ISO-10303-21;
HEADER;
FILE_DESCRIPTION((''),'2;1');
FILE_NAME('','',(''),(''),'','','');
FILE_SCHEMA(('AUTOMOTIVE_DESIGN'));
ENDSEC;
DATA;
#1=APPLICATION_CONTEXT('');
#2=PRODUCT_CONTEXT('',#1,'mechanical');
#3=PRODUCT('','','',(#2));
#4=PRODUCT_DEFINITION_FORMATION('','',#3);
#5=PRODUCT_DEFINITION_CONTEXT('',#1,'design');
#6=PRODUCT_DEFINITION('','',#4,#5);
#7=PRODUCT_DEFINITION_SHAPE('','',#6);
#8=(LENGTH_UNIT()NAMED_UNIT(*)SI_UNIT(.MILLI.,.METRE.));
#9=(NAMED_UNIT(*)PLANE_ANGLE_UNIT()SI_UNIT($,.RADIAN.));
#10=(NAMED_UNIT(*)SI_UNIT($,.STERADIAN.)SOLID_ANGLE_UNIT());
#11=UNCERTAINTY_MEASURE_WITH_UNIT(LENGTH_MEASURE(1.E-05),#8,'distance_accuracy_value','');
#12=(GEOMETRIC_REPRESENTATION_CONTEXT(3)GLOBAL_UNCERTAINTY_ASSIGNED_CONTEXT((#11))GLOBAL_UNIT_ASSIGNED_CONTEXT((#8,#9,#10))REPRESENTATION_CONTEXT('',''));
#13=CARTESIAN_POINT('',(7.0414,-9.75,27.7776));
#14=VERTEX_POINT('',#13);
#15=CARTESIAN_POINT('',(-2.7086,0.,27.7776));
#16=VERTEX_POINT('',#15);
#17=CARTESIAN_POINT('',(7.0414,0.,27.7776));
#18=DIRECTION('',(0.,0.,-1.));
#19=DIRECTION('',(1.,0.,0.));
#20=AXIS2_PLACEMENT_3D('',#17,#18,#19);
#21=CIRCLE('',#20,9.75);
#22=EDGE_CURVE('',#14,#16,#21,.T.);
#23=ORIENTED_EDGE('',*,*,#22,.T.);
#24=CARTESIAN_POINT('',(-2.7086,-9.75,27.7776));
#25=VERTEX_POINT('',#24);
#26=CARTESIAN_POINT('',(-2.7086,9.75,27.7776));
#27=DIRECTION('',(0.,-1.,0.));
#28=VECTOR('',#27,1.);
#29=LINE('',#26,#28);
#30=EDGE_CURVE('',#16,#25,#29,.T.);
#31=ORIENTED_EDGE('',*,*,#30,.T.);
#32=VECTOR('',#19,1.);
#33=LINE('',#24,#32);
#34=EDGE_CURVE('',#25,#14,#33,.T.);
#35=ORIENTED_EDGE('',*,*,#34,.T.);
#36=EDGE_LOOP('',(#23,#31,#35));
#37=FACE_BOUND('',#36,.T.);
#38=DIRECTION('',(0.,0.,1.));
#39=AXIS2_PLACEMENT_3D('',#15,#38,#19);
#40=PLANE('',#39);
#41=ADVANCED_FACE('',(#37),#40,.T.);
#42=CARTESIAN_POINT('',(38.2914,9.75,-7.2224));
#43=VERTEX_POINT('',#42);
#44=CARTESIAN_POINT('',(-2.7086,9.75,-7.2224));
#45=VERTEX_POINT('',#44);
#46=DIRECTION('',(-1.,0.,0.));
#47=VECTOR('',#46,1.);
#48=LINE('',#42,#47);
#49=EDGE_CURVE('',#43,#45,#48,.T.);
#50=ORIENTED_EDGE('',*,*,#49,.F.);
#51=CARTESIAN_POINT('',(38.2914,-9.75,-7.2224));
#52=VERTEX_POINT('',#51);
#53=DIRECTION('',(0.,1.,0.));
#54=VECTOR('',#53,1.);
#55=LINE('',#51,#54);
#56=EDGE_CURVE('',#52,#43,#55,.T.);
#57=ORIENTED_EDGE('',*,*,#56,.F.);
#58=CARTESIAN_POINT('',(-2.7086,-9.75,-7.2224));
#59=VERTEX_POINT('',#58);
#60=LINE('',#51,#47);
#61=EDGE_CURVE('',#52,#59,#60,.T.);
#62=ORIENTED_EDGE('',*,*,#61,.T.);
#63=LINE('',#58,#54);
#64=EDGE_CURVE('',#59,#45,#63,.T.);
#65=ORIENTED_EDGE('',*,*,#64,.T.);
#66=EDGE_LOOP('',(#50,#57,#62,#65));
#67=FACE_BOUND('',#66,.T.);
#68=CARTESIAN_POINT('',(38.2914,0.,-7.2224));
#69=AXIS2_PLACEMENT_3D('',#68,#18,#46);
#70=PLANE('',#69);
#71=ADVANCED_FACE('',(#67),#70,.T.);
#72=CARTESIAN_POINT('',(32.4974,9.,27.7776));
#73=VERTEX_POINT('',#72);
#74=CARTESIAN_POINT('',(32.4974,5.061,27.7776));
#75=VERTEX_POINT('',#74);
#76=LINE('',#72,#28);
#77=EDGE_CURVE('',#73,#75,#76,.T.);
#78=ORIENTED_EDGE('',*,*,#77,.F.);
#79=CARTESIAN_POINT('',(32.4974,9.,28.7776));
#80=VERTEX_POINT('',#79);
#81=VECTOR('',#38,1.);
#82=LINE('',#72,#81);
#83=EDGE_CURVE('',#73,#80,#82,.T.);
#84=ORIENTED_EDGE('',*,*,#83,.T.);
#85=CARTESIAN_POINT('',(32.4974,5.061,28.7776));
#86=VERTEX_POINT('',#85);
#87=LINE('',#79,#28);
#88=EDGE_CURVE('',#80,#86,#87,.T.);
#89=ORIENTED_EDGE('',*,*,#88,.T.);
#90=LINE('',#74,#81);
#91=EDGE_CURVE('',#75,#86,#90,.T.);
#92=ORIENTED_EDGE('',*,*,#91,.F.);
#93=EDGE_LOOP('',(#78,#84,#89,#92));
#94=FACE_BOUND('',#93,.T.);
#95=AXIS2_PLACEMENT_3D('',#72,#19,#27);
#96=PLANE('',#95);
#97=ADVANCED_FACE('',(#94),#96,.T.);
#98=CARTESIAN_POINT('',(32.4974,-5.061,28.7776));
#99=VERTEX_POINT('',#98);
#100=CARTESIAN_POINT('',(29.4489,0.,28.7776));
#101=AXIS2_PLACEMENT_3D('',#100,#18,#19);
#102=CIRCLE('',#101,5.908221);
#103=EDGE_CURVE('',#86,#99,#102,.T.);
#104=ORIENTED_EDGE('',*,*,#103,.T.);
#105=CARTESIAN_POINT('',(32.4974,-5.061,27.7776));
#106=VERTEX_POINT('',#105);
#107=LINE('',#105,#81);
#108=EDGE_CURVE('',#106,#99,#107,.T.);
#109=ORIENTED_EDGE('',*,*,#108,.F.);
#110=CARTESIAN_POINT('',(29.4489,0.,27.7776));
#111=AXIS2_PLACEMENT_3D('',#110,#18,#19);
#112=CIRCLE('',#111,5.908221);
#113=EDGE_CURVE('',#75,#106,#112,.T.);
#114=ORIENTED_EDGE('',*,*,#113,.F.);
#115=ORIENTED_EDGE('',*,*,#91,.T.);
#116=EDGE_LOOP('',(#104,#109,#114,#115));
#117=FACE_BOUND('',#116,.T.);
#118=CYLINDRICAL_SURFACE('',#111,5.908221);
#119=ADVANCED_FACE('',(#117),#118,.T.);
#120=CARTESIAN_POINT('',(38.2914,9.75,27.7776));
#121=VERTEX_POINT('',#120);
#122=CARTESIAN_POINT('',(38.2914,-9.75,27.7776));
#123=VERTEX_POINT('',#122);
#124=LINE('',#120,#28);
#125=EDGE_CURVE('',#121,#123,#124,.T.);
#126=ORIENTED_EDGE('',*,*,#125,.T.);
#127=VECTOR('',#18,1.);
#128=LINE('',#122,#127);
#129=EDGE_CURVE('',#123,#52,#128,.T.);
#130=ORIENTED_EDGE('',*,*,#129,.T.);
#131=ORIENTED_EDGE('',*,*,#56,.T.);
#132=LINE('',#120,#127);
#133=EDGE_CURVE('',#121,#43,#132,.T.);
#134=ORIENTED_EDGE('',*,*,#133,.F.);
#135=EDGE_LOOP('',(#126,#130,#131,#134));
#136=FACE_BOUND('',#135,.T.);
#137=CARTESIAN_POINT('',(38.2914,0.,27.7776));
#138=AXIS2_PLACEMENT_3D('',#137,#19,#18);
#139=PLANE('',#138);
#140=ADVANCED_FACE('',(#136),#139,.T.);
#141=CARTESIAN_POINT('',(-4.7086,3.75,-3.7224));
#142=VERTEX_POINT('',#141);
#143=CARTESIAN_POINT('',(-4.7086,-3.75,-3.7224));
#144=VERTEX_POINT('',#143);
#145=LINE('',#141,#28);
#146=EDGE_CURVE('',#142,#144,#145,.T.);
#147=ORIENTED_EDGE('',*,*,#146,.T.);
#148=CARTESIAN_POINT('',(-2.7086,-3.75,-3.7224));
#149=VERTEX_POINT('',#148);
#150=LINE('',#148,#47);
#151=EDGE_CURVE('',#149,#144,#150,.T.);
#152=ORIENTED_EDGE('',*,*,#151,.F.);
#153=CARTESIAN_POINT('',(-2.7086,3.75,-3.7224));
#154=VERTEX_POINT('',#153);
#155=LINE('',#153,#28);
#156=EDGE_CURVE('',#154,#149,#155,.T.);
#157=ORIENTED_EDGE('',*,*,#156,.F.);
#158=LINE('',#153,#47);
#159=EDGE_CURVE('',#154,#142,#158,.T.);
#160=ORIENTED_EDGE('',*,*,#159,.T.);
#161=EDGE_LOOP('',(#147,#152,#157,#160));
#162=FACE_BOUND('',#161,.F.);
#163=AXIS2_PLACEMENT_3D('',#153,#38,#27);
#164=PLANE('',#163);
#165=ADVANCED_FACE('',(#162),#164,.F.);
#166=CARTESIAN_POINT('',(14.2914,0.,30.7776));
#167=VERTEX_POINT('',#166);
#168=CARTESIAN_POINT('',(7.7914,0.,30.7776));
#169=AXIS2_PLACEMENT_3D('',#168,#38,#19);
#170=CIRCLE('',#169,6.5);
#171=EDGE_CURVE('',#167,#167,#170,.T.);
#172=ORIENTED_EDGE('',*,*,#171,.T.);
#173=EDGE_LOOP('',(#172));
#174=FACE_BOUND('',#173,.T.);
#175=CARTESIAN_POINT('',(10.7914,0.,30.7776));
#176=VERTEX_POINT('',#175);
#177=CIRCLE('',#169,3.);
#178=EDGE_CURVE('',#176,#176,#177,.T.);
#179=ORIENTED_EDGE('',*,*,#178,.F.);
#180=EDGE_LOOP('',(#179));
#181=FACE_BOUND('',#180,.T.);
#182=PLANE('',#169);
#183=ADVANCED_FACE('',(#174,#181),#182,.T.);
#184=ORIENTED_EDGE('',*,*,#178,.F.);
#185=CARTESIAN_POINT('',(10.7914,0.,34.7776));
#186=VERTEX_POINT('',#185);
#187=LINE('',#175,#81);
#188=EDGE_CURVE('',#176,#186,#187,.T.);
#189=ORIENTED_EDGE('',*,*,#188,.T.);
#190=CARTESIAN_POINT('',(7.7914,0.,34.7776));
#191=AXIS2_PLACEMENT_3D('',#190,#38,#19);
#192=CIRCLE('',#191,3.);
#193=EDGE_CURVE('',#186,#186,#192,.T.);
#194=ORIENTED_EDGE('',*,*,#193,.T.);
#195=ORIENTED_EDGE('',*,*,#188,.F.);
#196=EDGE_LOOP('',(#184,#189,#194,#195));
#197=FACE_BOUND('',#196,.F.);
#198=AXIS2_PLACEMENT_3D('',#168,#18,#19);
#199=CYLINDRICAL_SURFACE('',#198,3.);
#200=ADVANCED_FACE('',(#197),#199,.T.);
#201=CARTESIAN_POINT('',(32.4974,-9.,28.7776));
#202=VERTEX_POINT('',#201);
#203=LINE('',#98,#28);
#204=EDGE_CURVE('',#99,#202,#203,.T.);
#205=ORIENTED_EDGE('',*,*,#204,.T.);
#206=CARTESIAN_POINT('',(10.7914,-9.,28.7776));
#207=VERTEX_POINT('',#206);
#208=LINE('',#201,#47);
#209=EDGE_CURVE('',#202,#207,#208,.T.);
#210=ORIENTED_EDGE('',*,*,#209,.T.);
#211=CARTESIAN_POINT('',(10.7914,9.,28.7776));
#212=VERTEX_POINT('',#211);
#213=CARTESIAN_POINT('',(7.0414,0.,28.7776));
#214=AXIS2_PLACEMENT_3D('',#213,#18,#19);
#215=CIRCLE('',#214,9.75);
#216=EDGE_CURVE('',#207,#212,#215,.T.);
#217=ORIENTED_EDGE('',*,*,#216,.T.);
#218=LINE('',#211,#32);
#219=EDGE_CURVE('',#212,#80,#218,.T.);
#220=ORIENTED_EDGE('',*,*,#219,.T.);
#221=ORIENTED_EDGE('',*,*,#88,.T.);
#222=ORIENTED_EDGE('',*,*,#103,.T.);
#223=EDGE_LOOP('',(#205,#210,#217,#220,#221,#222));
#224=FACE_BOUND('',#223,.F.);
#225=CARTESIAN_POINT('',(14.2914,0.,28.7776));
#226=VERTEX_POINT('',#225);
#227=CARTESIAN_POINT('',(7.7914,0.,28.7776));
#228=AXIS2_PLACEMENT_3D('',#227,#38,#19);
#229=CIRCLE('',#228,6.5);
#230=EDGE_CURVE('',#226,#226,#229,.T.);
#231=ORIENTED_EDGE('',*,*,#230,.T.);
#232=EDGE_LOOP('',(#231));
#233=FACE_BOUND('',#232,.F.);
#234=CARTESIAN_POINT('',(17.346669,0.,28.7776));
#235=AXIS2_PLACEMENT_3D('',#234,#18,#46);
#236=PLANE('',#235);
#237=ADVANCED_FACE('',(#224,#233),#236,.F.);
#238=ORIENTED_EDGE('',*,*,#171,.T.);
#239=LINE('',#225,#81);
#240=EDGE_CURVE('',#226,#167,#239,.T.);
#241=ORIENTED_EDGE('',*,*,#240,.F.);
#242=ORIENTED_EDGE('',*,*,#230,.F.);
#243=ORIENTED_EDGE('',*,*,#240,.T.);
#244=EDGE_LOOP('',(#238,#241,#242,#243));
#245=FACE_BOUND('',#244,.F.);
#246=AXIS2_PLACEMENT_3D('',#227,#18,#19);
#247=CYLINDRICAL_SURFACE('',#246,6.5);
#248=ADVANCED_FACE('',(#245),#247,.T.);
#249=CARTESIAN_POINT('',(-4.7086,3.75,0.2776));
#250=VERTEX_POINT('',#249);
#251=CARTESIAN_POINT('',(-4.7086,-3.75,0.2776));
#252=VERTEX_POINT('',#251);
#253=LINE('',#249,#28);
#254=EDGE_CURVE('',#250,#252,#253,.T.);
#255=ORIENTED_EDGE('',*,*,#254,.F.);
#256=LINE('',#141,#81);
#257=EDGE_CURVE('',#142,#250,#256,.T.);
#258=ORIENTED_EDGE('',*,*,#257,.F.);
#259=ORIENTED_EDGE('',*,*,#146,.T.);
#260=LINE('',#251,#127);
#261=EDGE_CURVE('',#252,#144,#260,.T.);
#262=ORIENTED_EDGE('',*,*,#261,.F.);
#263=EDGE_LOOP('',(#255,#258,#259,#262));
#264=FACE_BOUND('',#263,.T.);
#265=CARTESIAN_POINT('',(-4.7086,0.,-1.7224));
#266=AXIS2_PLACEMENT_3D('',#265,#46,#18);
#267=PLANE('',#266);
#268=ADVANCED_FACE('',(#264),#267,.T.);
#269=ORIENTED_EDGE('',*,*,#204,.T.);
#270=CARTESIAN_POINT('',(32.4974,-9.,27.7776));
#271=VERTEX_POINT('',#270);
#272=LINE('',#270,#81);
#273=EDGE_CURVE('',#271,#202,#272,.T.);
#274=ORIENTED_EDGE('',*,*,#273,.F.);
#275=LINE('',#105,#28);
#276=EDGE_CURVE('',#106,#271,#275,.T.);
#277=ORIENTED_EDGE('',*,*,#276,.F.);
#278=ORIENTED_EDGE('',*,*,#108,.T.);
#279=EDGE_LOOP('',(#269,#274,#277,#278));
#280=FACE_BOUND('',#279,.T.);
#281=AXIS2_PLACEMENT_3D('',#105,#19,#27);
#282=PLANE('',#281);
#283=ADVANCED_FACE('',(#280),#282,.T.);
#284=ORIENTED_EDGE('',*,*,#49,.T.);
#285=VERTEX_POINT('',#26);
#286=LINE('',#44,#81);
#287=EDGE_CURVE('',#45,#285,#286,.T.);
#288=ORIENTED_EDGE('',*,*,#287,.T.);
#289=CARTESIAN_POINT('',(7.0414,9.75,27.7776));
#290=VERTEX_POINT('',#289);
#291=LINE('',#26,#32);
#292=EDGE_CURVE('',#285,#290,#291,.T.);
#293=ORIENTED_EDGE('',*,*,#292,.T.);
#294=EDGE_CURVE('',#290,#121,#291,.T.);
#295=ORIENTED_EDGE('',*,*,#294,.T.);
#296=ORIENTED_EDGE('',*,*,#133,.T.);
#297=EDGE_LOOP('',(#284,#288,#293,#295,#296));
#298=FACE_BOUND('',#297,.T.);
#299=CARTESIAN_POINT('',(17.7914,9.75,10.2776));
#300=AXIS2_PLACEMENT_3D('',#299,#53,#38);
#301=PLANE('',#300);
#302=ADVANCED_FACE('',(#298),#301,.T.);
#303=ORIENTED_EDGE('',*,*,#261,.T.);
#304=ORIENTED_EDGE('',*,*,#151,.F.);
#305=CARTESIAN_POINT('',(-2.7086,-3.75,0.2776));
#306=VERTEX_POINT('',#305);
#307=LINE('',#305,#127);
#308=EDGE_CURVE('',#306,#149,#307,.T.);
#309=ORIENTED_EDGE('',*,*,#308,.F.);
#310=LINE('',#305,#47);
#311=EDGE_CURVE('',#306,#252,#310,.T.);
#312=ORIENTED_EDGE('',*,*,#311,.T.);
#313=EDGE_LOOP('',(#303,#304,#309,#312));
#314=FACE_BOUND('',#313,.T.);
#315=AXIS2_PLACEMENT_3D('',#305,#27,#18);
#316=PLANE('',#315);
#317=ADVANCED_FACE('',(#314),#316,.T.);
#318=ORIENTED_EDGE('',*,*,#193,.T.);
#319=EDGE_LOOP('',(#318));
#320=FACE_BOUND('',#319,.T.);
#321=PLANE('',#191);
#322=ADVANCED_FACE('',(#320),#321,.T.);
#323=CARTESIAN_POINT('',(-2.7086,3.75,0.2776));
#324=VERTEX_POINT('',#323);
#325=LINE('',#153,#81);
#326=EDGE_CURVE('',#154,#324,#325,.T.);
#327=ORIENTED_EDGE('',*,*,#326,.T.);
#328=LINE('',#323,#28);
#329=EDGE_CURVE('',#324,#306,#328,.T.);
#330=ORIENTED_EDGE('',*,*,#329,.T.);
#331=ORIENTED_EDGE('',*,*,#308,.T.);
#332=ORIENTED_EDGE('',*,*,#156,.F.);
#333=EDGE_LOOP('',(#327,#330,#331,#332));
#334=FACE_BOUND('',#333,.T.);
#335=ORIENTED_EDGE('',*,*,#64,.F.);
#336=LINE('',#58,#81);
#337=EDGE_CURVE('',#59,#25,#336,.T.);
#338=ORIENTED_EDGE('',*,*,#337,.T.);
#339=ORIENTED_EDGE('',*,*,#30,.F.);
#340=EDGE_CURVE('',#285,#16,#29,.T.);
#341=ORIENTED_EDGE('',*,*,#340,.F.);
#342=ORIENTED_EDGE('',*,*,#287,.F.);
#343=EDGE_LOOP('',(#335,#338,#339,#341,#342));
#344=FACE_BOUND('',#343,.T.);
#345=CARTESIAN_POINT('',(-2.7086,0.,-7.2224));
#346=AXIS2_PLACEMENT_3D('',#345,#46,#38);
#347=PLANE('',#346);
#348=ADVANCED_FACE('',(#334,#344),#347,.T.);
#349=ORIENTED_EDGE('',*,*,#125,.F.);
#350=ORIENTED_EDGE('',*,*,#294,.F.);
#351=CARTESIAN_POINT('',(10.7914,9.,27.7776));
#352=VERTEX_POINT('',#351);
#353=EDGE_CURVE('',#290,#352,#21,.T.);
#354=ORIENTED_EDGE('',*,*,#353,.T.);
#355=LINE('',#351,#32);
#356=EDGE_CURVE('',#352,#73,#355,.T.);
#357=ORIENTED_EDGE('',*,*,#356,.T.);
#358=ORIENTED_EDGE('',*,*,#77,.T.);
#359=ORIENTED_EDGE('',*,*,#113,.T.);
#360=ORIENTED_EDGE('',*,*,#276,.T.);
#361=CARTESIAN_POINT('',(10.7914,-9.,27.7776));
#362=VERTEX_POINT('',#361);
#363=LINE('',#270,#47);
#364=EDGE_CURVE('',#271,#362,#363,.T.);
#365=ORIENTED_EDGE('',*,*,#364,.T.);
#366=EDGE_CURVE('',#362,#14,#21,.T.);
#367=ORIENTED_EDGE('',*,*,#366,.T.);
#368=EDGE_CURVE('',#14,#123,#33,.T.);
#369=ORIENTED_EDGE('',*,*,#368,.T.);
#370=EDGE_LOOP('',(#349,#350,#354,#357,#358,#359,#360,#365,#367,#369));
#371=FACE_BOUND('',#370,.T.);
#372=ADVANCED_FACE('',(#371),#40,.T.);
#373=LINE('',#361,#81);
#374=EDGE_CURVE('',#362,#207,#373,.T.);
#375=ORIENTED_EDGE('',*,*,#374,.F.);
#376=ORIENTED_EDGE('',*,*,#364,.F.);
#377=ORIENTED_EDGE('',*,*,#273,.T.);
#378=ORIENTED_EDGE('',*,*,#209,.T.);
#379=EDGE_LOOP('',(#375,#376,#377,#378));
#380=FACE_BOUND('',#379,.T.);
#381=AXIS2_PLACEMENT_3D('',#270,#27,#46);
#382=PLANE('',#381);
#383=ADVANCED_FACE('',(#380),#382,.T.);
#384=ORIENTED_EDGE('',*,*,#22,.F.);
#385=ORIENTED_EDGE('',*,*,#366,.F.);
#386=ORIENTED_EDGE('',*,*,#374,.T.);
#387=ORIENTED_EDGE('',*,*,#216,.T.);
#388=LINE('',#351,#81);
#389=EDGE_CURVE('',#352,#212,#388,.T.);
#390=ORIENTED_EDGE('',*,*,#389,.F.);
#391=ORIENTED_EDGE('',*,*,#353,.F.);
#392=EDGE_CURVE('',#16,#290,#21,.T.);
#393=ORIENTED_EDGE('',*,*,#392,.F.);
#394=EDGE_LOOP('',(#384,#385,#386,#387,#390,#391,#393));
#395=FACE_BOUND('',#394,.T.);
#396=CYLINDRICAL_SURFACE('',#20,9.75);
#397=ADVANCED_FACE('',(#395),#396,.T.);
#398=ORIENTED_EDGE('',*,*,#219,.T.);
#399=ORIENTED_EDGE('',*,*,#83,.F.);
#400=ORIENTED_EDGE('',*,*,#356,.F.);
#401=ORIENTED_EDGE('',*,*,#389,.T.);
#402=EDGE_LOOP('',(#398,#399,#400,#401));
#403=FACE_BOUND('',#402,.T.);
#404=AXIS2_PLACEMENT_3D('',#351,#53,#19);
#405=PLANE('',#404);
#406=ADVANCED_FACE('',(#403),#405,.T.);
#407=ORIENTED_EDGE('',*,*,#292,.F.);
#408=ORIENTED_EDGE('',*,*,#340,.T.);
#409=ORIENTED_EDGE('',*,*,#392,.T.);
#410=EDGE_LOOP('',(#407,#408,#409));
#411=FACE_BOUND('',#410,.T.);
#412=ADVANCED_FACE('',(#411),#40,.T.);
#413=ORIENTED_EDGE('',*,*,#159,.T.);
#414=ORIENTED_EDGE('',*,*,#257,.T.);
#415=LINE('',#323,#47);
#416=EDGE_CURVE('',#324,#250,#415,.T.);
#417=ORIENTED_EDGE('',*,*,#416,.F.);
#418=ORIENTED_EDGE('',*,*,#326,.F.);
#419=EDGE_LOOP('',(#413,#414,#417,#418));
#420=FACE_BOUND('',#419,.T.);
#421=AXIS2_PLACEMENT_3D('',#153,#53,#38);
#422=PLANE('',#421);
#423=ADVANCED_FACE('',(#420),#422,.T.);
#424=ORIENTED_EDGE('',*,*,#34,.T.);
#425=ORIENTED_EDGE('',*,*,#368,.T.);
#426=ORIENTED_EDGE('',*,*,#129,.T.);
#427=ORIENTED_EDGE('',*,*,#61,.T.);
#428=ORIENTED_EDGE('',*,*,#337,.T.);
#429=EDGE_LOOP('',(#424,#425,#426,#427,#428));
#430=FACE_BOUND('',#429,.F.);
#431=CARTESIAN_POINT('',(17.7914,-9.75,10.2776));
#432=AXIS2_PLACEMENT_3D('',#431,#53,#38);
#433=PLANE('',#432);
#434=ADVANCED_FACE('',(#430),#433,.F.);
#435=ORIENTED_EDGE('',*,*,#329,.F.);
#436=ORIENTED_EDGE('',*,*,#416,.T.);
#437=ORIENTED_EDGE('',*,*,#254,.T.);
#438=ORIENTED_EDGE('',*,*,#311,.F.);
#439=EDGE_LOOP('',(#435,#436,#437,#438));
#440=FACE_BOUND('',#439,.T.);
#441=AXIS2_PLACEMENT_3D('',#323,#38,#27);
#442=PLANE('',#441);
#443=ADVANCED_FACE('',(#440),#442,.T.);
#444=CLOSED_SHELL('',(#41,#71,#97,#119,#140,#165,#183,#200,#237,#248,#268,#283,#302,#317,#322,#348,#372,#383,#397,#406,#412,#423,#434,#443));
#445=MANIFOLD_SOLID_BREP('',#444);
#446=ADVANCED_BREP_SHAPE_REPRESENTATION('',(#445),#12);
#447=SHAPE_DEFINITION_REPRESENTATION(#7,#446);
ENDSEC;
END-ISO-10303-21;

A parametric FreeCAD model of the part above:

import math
import FreeCAD as App
import Part
import Sketcher
from FreeCAD import Vector


def add_polygon(sketch, points):
    """Adds a closed chain of lines whose ends are joined by coincident constraints."""
    first, n = sketch.GeometryCount, len(points)
    for a, b in zip(points, points[1:] + points[:1]):
        sketch.addGeometry(Part.LineSegment(App.Vector(*a, 0), App.Vector(*b, 0)), False)
    for i in range(n):
        sketch.addConstraint(Sketcher.Constraint("Coincident", first + i, 2, first + (i + 1) % n, 1))

doc = App.newDocument("Part")
body = doc.addObject("PartDesign::Body", "Body")

sketch1 = doc.addObject("Sketcher::SketchObject", "Sketch")
body.addObject(sketch1)
sketch1.AttachmentSupport = (doc.XZ_Plane, [""])
sketch1.MapMode = "FlatFace"
add_polygon(sketch1, [(38.2914, -7.2224), (38.2914, 27.7776), (-2.7086, 27.7776), (-2.7086, -7.2224)])
sketch1.addConstraint(Sketcher.Constraint("Vertical", 0))
sketch1.addConstraint(Sketcher.Constraint("Horizontal", 1))
sketch1.addConstraint(Sketcher.Constraint("Vertical", 2))
sketch1.addConstraint(Sketcher.Constraint("Horizontal", 3))
sketch1.addConstraint(Sketcher.Constraint("DistanceX", 1, 2, 1, 1, 41.0))
sketch1.addConstraint(Sketcher.Constraint("DistanceY", 0, 1, 0, 2, 35.0))
sketch1.addConstraint(Sketcher.Constraint("DistanceX", -1, 1, 0, 2, 38.2914))
sketch1.addConstraint(Sketcher.Constraint("DistanceY", -1, 1, 0, 2, 27.7776))
pad1 = doc.addObject("PartDesign::Pad", "Pad")
body.addObject(pad1)
pad1.Profile = sketch1
pad1.Length = 19.5
pad1.Midplane = True

sketch2 = doc.addObject("Sketcher::SketchObject", "Sketch001")
body.addObject(sketch2)
sketch2.AttachmentSupport = (doc.XY_Plane, [""])
sketch2.MapMode = "FlatFace"
sketch2.AttachmentOffset = App.Placement(Vector(0, 0, 27.7776), App.Rotation())
sketch2.addGeometry(Part.LineSegment(Vector(32.4974, 9, 0), Vector(10.7914, 9, 0)), False)
sketch2.addGeometry(Part.ArcOfCircle(Part.Circle(Vector(7.0414, 0, 0), Vector(0, 0, 1), 9.75), math.radians(67.380135), math.radians(292.619865)), False)
sketch2.addGeometry(Part.LineSegment(Vector(10.7914, -9, 0), Vector(32.4974, -9, 0)), False)
sketch2.addGeometry(Part.LineSegment(Vector(32.4974, -9, 0), Vector(32.4974, -5.061, 0)), False)
sketch2.addGeometry(Part.ArcOfCircle(Part.Circle(Vector(29.4489, 0, 0), Vector(0, 0, 1), 5.908221), math.radians(-58.937287), math.radians(58.937287)), False)
sketch2.addGeometry(Part.LineSegment(Vector(32.4974, 5.061, 0), Vector(32.4974, 9, 0)), False)
sketch2.addConstraint(Sketcher.Constraint("Coincident", 0, 2, 1, 1))
sketch2.addConstraint(Sketcher.Constraint("Coincident", 1, 2, 2, 1))
sketch2.addConstraint(Sketcher.Constraint("Coincident", 2, 2, 3, 1))
sketch2.addConstraint(Sketcher.Constraint("Coincident", 3, 2, 4, 1))
sketch2.addConstraint(Sketcher.Constraint("Coincident", 4, 2, 5, 1))
sketch2.addConstraint(Sketcher.Constraint("Coincident", 5, 2, 0, 1))
sketch2.addConstraint(Sketcher.Constraint("Horizontal", 0))
sketch2.addConstraint(Sketcher.Constraint("Horizontal", 2))
sketch2.addConstraint(Sketcher.Constraint("Vertical", 3))
sketch2.addConstraint(Sketcher.Constraint("Vertical", 5))
sketch2.addConstraint(Sketcher.Constraint("Symmetric", 0, 2, 1, 2, -1))
sketch2.addConstraint(Sketcher.Constraint("Symmetric", 3, 2, 4, 2, -1))
sketch2.addConstraint(Sketcher.Constraint("Radius", 1, 9.75))
sketch2.addConstraint(Sketcher.Constraint("DistanceY", -1, 1, 0, 2, 9.0))
sketch2.addConstraint(Sketcher.Constraint("Radius", 4, 5.9082))
sketch2.addConstraint(Sketcher.Constraint("DistanceX", 0, 2, 0, 1, 21.706))
sketch2.addConstraint(Sketcher.Constraint("DistanceY", 3, 1, 3, 2, 3.939))
sketch2.addConstraint(Sketcher.Constraint("DistanceX", -1, 1, 4, 3, 29.449))
pad2 = doc.addObject("PartDesign::Pad", "Pad001")
body.addObject(pad2)
pad2.Profile = sketch2
pad2.Length = 1

sketch3 = doc.addObject("Sketcher::SketchObject", "Sketch002")
body.addObject(sketch3)
sketch3.AttachmentSupport = (doc.XY_Plane, [""])
sketch3.MapMode = "FlatFace"
sketch3.AttachmentOffset = App.Placement(Vector(0, 0, 28.7776), App.Rotation())
sketch3.addGeometry(Part.Circle(Vector(7.7914, 0, 0), Vector(0, 0, 1), 6.5), False)
sketch3.addConstraint(Sketcher.Constraint("PointOnObject", 0, 3, -1))
sketch3.addConstraint(Sketcher.Constraint("Diameter", 0, 13.0))
sketch3.addConstraint(Sketcher.Constraint("DistanceX", -1, 1, 0, 3, 7.7914))
pad3 = doc.addObject("PartDesign::Pad", "Pad002")
body.addObject(pad3)
pad3.Profile = sketch3
pad3.Length = 2

sketch4 = doc.addObject("Sketcher::SketchObject", "Sketch003")
body.addObject(sketch4)
sketch4.AttachmentSupport = (doc.XY_Plane, [""])
sketch4.MapMode = "FlatFace"
sketch4.AttachmentOffset = App.Placement(Vector(0, 0, 30.7776), App.Rotation())
sketch4.addGeometry(Part.Circle(Vector(7.7914, 0, 0), Vector(0, 0, 1), 3), False)
sketch4.addConstraint(Sketcher.Constraint("PointOnObject", 0, 3, -1))
sketch4.addConstraint(Sketcher.Constraint("Diameter", 0, 6.0))
sketch4.addConstraint(Sketcher.Constraint("DistanceX", -1, 1, 0, 3, 7.7914))
pad4 = doc.addObject("PartDesign::Pad", "Pad003")
body.addObject(pad4)
pad4.Profile = sketch4
pad4.Length = 4

sketch5 = doc.addObject("Sketcher::SketchObject", "Sketch004")
body.addObject(sketch5)
sketch5.AttachmentSupport = (doc.YZ_Plane, [""])
sketch5.MapMode = "FlatFace"
sketch5.AttachmentOffset = App.Placement(Vector(0, 0, -2.7086), App.Rotation())
add_polygon(sketch5, [(3.75, 0.2776), (3.75, -3.7224), (-3.75, -3.7224), (-3.75, 0.2776)])
sketch5.addConstraint(Sketcher.Constraint("Vertical", 0))
sketch5.addConstraint(Sketcher.Constraint("Horizontal", 1))
sketch5.addConstraint(Sketcher.Constraint("Vertical", 2))
sketch5.addConstraint(Sketcher.Constraint("Horizontal", 3))
sketch5.addConstraint(Sketcher.Constraint("DistanceY", 0, 2, 0, 1, 4.0))
sketch5.addConstraint(Sketcher.Constraint("DistanceX", 1, 2, 1, 1, 7.5))
sketch5.addConstraint(Sketcher.Constraint("DistanceX", -1, 1, 0, 2, 3.75))
sketch5.addConstraint(Sketcher.Constraint("DistanceY", 0, 2, -1, 1, 3.7224))
pad5 = doc.addObject("PartDesign::Pad", "Pad004")
body.addObject(pad5)
pad5.Profile = sketch5
pad5.Length = 2
pad5.Reversed = True

doc.recompute()
